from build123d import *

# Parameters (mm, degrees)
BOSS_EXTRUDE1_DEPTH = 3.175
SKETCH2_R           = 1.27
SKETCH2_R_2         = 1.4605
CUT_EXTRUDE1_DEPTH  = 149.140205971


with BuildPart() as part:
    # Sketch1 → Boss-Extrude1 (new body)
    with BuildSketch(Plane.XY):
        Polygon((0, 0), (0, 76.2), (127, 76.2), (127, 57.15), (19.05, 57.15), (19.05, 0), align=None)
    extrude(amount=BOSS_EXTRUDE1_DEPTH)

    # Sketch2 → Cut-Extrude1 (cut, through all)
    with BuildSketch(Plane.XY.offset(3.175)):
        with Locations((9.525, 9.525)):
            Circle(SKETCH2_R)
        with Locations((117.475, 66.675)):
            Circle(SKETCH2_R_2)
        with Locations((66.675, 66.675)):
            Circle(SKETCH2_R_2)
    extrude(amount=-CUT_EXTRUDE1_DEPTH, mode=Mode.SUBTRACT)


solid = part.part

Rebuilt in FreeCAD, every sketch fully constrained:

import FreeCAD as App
import Part
import Sketcher
from FreeCAD import Vector
Q = App.Units.Quantity


def add_polygon(sketch, points):
    """Adds a closed chain of lines whose ends are joined by coincident constraints."""
    first, n = sketch.GeometryCount, len(points)
    for a, b in zip(points, points[1:] + points[:1]):
        sketch.addGeometry(Part.LineSegment(App.Vector(*a, 0), App.Vector(*b, 0)), False)
    for i in range(n):
        sketch.addConstraint(Sketcher.Constraint("Coincident", first + i, 2, first + (i + 1) % n, 1))

doc = App.newDocument("Part")
body = doc.addObject("PartDesign::Body", "Body")

# Sketch on XY plane
sketch1 = doc.addObject("Sketcher::SketchObject", "Sketch")
body.addObject(sketch1)
sketch1.AttachmentSupport = (doc.XY_Plane, [""])
sketch1.MapMode = "FlatFace"
add_polygon(sketch1, [(0, 76.2), (0, 0), (19.05, 0), (19.05, 57.15), (127, 57.15), (127, 76.2)])  # lines 0-5
sketch1.addConstraint([
    Sketcher.Constraint("Vertical", 0),
    Sketcher.Constraint("Horizontal", 1),
    Sketcher.Constraint("Vertical", 2),
    Sketcher.Constraint("Horizontal", 3),
    Sketcher.Constraint("Vertical", 4),
    Sketcher.Constraint("Horizontal", 5),
    Sketcher.Constraint("Coincident", 0, 2, -1, 1),
    Sketcher.Constraint("Equal", 1, 4),
    Sketcher.Constraint("DistanceX", 5, 2, 5, 1, Q("5 in")),
    Sketcher.Constraint("DistanceY", 0, 2, 0, 1, Q("3 in")),
    Sketcher.Constraint("DistanceX", 1, 1, 1, 2, Q("0.75 in")),
])
pad1 = doc.addObject("PartDesign::Pad", "Pad")
body.addObject(pad1)
pad1.Profile = sketch1
pad1.Length = Q("0.125 in")

# Sketch on XY plane
sketch2 = doc.addObject("Sketcher::SketchObject", "Sketch001")
body.addObject(sketch2)
sketch2.AttachmentSupport = (doc.XY_Plane, [""])
sketch2.MapMode = "FlatFace"
sketch2.AttachmentOffset = App.Placement(Vector(0, 0, 0.125 * 25.4), App.Rotation())
sketch2.addGeometry([
    Part.Circle(Vector(9.525, 9.525, 0), Vector(0, 0, 1), 1.27),
    Part.Circle(Vector(117.475, 66.675, 0), Vector(0, 0, 1), 1.4605),
    Part.Circle(Vector(66.675, 66.675, 0), Vector(0, 0, 1), 1.4605),
], False)
sketch2.addConstraint([
    Sketcher.Constraint("Equal", 1, 2),
    Sketcher.Constraint("Horizontal", 1, 3, 2, 3),
    Sketcher.Constraint("Diameter", 0, Q("0.1 in")),
    Sketcher.Constraint("Diameter", 1, Q("0.115 in")),
    Sketcher.Constraint("DistanceX", 2, 3, 1, 3, Q("2 in")),
    Sketcher.Constraint("DistanceX", 0, 3, 1, 3, Q("4.25 in")),
    Sketcher.Constraint("DistanceY", 0, 3, 1, 3, Q("2.25 in")),
    Sketcher.Constraint("DistanceX", -1, 1, 0, 3, Q("0.375 in")),
    Sketcher.Constraint("DistanceY", -1, 1, 0, 3, Q("0.375 in")),
])
pocket1 = doc.addObject("PartDesign::Pocket", "Pocket")
body.addObject(pocket1)
pocket1.Profile = sketch2
pocket1.Type = "ThroughAll"

doc.recompute()
